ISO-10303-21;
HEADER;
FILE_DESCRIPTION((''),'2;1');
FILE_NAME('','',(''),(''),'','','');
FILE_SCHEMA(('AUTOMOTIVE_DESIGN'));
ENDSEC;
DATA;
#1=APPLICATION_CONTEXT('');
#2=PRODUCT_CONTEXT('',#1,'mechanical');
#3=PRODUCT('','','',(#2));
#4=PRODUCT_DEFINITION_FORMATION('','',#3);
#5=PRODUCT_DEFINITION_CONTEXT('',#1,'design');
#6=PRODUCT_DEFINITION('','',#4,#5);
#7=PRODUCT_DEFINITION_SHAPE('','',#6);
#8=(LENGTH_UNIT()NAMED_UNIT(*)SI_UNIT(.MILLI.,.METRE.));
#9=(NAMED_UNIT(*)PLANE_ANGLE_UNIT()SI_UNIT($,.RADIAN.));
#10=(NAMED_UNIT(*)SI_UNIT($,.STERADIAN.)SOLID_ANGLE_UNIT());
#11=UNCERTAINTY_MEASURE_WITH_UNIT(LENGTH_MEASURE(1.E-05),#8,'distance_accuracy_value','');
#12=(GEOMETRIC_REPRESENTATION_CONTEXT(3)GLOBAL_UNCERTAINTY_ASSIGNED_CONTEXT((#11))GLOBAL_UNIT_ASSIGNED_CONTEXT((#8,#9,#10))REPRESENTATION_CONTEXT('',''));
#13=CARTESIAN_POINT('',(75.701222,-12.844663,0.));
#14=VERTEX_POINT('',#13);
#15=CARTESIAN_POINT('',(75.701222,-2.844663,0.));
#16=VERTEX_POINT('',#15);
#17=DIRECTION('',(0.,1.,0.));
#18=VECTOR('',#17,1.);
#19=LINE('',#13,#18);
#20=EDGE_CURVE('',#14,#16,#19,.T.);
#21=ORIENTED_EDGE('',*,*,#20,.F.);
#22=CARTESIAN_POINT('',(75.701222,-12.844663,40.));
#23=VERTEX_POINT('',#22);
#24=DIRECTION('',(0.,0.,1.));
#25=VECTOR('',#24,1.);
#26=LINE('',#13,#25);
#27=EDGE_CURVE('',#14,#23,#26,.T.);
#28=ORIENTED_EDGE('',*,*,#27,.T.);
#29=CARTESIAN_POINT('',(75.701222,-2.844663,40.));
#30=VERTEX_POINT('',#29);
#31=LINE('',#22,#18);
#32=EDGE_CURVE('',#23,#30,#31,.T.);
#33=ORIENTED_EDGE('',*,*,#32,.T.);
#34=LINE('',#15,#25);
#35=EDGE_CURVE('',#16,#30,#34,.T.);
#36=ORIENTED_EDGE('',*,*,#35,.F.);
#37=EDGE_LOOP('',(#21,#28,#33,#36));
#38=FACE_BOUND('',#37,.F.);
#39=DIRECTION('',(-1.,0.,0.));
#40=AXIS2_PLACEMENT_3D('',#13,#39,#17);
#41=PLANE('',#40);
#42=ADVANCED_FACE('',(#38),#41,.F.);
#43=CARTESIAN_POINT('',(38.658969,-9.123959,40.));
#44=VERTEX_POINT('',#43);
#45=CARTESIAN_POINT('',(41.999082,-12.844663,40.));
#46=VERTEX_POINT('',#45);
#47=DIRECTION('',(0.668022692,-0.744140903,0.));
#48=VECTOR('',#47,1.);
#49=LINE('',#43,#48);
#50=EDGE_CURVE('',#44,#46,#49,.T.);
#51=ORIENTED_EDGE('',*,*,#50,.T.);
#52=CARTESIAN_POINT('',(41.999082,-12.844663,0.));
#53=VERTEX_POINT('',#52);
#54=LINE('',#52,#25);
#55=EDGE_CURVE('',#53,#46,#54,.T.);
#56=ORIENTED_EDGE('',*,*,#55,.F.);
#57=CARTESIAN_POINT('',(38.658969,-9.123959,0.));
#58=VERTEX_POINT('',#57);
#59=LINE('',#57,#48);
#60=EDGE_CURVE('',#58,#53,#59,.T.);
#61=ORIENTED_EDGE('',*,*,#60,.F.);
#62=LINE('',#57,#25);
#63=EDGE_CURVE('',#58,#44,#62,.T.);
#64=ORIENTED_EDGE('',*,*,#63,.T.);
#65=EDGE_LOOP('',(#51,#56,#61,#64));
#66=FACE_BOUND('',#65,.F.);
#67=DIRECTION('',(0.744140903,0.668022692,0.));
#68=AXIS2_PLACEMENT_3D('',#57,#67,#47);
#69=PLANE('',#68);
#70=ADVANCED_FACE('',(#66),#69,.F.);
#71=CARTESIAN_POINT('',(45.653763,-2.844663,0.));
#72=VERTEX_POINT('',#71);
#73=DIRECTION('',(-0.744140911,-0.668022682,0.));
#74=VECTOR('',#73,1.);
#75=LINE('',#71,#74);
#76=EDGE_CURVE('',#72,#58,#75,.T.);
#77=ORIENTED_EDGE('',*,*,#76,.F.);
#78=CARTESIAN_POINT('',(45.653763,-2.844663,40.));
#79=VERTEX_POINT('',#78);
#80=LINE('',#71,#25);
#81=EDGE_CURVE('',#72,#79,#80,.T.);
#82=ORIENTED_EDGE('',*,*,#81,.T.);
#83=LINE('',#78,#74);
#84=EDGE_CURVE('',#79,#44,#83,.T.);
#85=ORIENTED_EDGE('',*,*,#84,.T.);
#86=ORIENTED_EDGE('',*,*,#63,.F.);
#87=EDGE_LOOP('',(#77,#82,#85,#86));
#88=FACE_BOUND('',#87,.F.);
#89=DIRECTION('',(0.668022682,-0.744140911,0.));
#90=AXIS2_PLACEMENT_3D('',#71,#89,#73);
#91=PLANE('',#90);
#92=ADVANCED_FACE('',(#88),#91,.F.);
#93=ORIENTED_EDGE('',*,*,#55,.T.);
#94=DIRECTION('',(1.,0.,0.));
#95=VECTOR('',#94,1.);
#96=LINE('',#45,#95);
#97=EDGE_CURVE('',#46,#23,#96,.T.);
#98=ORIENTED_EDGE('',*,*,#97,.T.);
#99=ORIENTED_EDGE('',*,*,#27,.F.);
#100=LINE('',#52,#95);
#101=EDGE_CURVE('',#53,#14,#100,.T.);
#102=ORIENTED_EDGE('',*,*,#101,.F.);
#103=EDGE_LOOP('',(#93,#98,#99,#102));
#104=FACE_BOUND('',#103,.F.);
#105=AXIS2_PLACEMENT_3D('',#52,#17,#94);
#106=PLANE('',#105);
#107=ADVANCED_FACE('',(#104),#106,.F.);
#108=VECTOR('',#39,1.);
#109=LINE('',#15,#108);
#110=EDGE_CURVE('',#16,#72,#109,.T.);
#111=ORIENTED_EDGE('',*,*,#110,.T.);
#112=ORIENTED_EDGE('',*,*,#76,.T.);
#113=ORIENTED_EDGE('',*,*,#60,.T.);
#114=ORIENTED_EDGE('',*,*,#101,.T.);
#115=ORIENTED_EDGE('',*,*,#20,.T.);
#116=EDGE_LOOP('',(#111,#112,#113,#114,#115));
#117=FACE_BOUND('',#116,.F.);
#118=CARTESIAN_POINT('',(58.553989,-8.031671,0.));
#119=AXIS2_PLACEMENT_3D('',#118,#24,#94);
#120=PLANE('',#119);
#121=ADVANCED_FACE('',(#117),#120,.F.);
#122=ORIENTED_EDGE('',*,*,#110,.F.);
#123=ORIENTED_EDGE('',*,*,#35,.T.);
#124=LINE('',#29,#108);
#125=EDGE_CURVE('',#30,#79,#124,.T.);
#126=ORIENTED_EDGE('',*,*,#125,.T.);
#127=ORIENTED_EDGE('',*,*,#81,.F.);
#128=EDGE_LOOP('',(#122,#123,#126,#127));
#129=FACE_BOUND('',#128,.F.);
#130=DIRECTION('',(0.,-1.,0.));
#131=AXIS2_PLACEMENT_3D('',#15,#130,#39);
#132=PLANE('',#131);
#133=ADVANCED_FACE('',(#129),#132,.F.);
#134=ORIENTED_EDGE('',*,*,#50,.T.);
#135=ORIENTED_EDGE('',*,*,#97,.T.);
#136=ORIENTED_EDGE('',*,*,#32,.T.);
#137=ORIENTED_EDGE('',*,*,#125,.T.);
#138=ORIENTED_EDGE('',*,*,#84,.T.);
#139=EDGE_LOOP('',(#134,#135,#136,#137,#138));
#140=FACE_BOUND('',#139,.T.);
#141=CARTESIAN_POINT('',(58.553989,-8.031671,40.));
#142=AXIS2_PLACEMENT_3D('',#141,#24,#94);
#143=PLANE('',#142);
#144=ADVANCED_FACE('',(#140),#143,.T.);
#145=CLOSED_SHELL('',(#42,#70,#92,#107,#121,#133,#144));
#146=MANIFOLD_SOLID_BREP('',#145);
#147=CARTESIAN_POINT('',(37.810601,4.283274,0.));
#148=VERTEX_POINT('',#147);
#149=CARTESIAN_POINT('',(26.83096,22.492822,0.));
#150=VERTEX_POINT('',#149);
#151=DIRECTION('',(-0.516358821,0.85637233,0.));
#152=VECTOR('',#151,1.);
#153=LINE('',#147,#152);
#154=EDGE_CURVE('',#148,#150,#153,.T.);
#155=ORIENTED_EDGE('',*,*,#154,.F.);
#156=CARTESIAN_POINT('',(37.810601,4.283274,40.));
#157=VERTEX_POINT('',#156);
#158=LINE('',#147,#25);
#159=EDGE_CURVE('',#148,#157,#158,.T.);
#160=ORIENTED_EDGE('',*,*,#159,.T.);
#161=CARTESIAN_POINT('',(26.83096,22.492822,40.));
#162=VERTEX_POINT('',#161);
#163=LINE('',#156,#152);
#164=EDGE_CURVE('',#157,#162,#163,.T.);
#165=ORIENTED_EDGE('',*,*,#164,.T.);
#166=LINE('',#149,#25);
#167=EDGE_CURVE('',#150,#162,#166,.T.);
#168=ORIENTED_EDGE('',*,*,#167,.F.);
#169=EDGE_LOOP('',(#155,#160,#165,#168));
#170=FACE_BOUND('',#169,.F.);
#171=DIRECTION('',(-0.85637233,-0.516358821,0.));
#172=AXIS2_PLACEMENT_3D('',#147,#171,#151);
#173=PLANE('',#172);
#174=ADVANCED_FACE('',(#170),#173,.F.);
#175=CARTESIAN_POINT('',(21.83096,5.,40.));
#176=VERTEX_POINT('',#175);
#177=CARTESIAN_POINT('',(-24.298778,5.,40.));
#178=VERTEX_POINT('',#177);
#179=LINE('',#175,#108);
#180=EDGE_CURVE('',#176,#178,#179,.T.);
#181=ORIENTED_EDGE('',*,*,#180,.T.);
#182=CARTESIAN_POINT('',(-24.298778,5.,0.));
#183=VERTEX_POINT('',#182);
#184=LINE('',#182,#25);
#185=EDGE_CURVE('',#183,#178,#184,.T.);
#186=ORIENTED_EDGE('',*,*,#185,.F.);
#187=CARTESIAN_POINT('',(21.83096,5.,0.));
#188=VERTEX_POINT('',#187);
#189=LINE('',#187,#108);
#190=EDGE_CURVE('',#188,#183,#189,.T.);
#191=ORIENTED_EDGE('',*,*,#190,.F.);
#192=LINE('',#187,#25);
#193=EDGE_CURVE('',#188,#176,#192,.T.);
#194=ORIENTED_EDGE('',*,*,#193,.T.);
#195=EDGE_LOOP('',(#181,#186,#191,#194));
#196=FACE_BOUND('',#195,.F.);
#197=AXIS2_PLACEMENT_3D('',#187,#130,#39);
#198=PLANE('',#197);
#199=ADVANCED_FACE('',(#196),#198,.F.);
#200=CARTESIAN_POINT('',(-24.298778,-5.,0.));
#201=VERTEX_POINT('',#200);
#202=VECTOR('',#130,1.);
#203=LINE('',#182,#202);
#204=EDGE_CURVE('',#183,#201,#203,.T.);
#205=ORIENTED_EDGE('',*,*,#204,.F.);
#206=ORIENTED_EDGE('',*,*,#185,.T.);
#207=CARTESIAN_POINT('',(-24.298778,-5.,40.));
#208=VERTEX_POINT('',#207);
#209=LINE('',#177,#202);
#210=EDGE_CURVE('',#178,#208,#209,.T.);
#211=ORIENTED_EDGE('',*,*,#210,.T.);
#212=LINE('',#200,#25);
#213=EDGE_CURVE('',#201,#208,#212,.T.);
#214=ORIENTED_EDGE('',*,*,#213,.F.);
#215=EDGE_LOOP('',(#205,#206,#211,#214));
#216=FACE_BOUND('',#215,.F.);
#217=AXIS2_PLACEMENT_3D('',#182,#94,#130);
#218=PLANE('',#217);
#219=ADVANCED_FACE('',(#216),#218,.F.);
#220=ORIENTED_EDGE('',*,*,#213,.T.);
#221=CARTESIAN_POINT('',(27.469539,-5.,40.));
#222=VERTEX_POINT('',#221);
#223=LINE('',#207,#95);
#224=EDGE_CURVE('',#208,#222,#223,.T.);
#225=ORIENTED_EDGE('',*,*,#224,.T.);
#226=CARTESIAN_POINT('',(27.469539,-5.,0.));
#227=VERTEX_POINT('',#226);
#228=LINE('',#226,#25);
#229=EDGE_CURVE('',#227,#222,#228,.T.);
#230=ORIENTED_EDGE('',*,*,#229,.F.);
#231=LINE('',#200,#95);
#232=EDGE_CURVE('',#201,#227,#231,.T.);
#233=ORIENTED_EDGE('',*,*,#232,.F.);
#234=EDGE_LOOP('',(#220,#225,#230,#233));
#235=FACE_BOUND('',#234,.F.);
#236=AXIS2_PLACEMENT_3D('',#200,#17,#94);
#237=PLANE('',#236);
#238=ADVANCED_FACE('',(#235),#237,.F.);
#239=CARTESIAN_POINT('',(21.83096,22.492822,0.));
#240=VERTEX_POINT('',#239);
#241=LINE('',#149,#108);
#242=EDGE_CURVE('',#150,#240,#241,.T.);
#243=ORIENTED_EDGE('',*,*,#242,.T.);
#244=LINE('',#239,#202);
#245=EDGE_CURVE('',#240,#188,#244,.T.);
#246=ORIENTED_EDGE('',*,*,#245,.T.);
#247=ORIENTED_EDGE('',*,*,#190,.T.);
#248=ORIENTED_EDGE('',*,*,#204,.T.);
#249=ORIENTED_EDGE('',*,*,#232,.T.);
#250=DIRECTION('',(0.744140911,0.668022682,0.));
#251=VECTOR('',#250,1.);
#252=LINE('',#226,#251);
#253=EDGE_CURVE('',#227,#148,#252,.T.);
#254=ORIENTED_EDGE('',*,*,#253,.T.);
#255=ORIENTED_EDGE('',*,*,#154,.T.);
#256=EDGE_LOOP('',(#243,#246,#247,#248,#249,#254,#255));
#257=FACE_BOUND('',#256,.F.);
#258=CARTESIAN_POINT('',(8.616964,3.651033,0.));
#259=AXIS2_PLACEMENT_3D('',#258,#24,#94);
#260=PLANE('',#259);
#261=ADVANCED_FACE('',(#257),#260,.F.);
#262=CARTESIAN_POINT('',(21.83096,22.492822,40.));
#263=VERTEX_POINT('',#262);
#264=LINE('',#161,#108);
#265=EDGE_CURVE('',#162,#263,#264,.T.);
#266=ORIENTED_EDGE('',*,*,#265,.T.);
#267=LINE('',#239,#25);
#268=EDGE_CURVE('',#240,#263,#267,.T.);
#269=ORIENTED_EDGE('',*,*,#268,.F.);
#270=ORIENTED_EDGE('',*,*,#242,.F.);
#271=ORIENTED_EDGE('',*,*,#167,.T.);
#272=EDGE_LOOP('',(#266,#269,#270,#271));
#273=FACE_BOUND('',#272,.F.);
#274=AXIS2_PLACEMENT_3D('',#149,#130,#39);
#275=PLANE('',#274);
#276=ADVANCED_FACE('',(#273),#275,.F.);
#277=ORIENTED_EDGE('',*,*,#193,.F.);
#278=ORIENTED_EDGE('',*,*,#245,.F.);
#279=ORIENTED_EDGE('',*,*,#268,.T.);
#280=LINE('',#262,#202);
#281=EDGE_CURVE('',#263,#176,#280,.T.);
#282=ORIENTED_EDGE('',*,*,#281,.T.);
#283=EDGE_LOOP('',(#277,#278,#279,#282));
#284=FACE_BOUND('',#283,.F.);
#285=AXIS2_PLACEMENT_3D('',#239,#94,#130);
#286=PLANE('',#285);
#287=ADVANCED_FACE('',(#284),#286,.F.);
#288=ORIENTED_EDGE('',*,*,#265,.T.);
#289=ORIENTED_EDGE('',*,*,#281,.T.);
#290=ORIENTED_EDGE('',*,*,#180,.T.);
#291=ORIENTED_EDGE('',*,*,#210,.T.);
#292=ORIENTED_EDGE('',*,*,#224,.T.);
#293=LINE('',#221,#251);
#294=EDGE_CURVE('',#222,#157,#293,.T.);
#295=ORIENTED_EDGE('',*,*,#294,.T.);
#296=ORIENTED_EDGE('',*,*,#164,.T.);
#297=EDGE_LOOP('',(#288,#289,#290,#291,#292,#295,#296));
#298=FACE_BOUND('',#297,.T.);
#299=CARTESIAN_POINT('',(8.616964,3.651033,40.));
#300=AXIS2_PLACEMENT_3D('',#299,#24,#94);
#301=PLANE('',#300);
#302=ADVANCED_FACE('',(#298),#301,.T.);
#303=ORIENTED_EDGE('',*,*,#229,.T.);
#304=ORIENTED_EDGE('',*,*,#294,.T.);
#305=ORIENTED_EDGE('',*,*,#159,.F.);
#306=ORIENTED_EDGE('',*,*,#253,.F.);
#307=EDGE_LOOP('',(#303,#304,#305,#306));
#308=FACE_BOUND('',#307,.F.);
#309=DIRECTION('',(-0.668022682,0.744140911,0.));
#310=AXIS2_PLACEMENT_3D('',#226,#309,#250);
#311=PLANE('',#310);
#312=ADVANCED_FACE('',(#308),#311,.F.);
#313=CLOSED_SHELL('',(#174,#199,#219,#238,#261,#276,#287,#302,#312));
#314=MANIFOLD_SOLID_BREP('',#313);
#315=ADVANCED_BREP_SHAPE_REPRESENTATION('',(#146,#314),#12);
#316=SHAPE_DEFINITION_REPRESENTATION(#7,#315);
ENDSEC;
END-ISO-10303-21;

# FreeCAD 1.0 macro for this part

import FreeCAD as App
import Part
import Sketcher

V = App.Vector
Q = App.Units.Quantity

doc = App.newDocument("Part")
body = doc.addObject("PartDesign::Body", "Body")
body.AllowCompound = True

# Sketch on XY plane
sketch1 = body.newObject("Sketcher::SketchObject", "Sketch")
sketch1.AttachmentSupport = (doc.getObject("XY_Plane"), [""])
sketch1.MapMode = "FlatFace"
sketch1.addGeometry(Part.LineSegment(V(21.83096, 5, 0), V(-24.298778, 5, 0)), False)
sketch1.addGeometry(Part.LineSegment(V(-24.298778, 5, 0), V(-24.298778, -5, 0)), False)
sketch1.addGeometry(Part.LineSegment(V(-24.298778, -5, 0), V(27.469539, -5, 0)), False)
sketch1.addGeometry(Part.LineSegment(V(27.469539, -5, 0), V(37.810601, 4.283274, 0)), False)
sketch1.addGeometry(Part.LineSegment(V(37.810601, 4.283274, 0), V(26.83096, 22.492822, 0)), False)
sketch1.addGeometry(Part.LineSegment(V(26.83096, 22.492822, 0), V(21.83096, 22.492822, 0)), False)
sketch1.addGeometry(Part.LineSegment(V(21.83096, 22.492822, 0), V(21.83096, 5, 0)), False)
sketch1.addGeometry(Part.LineSegment(V(75.701222, -12.844663, 0), V(75.701222, -2.844663, 0)), False)
sketch1.addGeometry(Part.LineSegment(V(75.701222, -2.844663, 0), V(45.653763, -2.844663, 0)), False)
sketch1.addGeometry(Part.LineSegment(V(45.653763, -2.844663, 0), V(38.658969, -9.123959, 0)), False)
sketch1.addGeometry(Part.LineSegment(V(38.658969, -9.123959, 0), V(41.999082, -12.844663, 0)), False)
sketch1.addGeometry(Part.LineSegment(V(41.999082, -12.844663, 0), V(75.701222, -12.844663, 0)), False)
sketch1.addConstraint(Sketcher.Constraint("Coincident", 0, 2, 1, 1))
sketch1.addConstraint(Sketcher.Constraint("Coincident", 1, 2, 2, 1))
sketch1.addConstraint(Sketcher.Constraint("Coincident", 2, 2, 3, 1))
sketch1.addConstraint(Sketcher.Constraint("Coincident", 3, 2, 4, 1))
sketch1.addConstraint(Sketcher.Constraint("Coincident", 4, 2, 5, 1))
sketch1.addConstraint(Sketcher.Constraint("Coincident", 5, 2, 6, 1))
sketch1.addConstraint(Sketcher.Constraint("Coincident", 6, 2, 0, 1))
sketch1.addConstraint(Sketcher.Constraint("Coincident", 7, 2, 8, 1))
sketch1.addConstraint(Sketcher.Constraint("Coincident", 8, 2, 9, 1))
sketch1.addConstraint(Sketcher.Constraint("Coincident", 9, 2, 10, 1))
sketch1.addConstraint(Sketcher.Constraint("Coincident", 10, 2, 11, 1))
sketch1.addConstraint(Sketcher.Constraint("Coincident", 11, 2, 7, 1))
sketch1.addConstraint(Sketcher.Constraint("Horizontal", 0))
sketch1.addConstraint(Sketcher.Constraint("Vertical", 1))
sketch1.addConstraint(Sketcher.Constraint("Horizontal", 2))
sketch1.addConstraint(Sketcher.Constraint("Horizontal", 5))
sketch1.addConstraint(Sketcher.Constraint("Vertical", 6))
sketch1.addConstraint(Sketcher.Constraint("Vertical", 7))
sketch1.addConstraint(Sketcher.Constraint("Horizontal", 8))
sketch1.addConstraint(Sketcher.Constraint("Horizontal", 11))
sketch1.addConstraint(Sketcher.Constraint("Parallel", 3, 9))
sketch1.addConstraint(Sketcher.Constraint("Perpendicular", 9, 10))
sketch1.addConstraint(Sketcher.Constraint("Equal", 1, 7))
sketch1.addConstraint(Sketcher.Constraint("DistanceX", 5, 2, 5, 1, Q("5 mm")))
sketch1.addConstraint(Sketcher.Constraint("DistanceY", 1, 2, 1, 1, Q("10 mm")))
sketch1.addConstraint(Sketcher.Constraint("Distance", 10, Q("4.999999 mm")))
sketch1.addConstraint(Sketcher.Constraint("DistanceY", -1, 1, 0, 2, Q("5 mm")))
sketch1.addConstraint(Sketcher.Constraint("DistanceX", 0, 2, 0, 1, Q("46.129738 mm")))
sketch1.addConstraint(Sketcher.Constraint("DistanceX", 8, 2, 8, 1, Q("30.047459 mm")))
sketch1.addConstraint(Sketcher.Constraint("DistanceX", 11, 1, 11, 2, Q("33.70214 mm")))
sketch1.addConstraint(Sketcher.Constraint("DistanceX", -1, 1, 3, 2, Q("37.810601 mm")))
sketch1.addConstraint(Sketcher.Constraint("DistanceX", 2, 1, 2, 2, Q("51.768317 mm")))
sketch1.addConstraint(Sketcher.Constraint("DistanceY", 6, 2, 6, 1, Q("17.492822 mm")))
sketch1.addConstraint(Sketcher.Constraint("DistanceX", -1, 1, 2, 2, Q("27.469539 mm")))
sketch1.addConstraint(Sketcher.Constraint("DistanceX", -1, 1, 7, 2, Q("75.701222 mm")))
sketch1.addConstraint(Sketcher.Constraint("DistanceY", 9, 2, -1, 1, Q("9.123959 mm")))
pad1 = body.newObject("PartDesign::Pad", "Pad")
pad1.Profile = sketch1
pad1.Length = 40

doc.recompute()
